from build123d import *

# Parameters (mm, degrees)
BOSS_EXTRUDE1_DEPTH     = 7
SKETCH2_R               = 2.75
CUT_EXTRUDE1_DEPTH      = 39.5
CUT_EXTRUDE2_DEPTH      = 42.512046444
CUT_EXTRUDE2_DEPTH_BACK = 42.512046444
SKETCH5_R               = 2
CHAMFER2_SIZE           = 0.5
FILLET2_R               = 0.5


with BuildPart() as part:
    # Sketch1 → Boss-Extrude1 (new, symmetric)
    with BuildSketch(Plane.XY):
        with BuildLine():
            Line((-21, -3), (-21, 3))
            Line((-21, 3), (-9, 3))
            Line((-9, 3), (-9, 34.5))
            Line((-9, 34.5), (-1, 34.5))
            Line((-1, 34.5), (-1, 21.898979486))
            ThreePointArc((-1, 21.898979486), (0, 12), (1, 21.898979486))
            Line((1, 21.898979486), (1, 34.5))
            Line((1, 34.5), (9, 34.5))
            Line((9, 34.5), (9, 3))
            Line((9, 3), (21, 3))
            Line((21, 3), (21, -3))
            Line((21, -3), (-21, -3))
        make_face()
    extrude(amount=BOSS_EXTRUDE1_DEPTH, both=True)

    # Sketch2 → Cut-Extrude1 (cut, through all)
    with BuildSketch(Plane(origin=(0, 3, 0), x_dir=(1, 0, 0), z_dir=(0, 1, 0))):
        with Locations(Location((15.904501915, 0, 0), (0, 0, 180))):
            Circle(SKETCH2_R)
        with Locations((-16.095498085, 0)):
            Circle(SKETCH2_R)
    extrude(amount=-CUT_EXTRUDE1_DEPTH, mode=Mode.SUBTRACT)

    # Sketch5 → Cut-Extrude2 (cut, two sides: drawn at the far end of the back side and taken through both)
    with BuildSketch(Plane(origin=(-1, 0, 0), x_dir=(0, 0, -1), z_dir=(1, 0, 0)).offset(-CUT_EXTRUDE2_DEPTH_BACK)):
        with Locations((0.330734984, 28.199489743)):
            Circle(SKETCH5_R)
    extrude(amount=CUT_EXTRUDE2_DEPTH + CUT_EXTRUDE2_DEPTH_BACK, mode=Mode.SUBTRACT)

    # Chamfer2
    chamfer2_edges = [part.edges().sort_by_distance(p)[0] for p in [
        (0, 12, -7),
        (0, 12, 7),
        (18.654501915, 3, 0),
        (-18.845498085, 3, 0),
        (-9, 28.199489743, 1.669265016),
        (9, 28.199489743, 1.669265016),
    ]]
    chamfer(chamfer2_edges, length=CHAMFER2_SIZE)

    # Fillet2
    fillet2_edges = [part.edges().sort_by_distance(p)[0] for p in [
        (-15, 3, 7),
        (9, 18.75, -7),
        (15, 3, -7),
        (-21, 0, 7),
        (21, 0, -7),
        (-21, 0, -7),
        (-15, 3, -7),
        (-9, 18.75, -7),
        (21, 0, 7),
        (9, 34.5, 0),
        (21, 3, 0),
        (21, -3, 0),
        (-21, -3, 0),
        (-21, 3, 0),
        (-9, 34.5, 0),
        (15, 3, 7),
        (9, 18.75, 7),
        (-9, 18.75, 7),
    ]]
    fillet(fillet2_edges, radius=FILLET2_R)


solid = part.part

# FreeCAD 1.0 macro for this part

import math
import FreeCAD as App
import Part
import Sketcher
from FreeCAD import Vector
Q = App.Units.Quantity


def edges_at(feature, points):
    """Names of the edges that pass closest to the given points."""
    edges = feature.Shape.Edges
    near = lambda p: min(range(len(edges)), key=lambda i: edges[i].distToShape(Part.Vertex(*p))[0])
    return sorted({f"Edge{near(p) + 1}" for p in points})

doc = App.newDocument("Part")
body = doc.addObject("PartDesign::Body", "Body")

# Sketch on XY plane
sketch1 = body.newObject("Sketcher::SketchObject", "Sketch")
sketch1.AttachmentSupport = (doc.getObject("XY_Plane"), [""])
sketch1.MapMode = "FlatFace"
sketch1.addGeometry(Part.LineSegment(Vector(-21, 3, 0), Vector(-21, -3, 0)), False)
sketch1.addGeometry(Part.LineSegment(Vector(-21, -3, 0), Vector(21, -3, 0)), False)
sketch1.addGeometry(Part.LineSegment(Vector(21, -3, 0), Vector(21, 3, 0)), False)
sketch1.addGeometry(Part.LineSegment(Vector(21, 3, 0), Vector(9, 3, 0)), False)
sketch1.addGeometry(Part.LineSegment(Vector(9, 3, 0), Vector(9, 34.5, 0)), False)
sketch1.addGeometry(Part.LineSegment(Vector(9, 34.5, 0), Vector(1, 34.5, 0)), False)
sketch1.addGeometry(Part.LineSegment(Vector(1, 34.5, 0), Vector(1, 21.898979, 0)), False)
sketch1.addGeometry(Part.ArcOfCircle(Part.Circle(Vector(0, 17, 0), Vector(0, 0, 1), 5), math.radians(101.536959), math.radians(438.463041)), False)
sketch1.addGeometry(Part.LineSegment(Vector(-1, 21.898979, 0), Vector(-1, 34.5, 0)), False)
sketch1.addGeometry(Part.LineSegment(Vector(-1, 34.5, 0), Vector(-9, 34.5, 0)), False)
sketch1.addGeometry(Part.LineSegment(Vector(-9, 34.5, 0), Vector(-9, 3, 0)), False)
sketch1.addGeometry(Part.LineSegment(Vector(-9, 3, 0), Vector(-21, 3, 0)), False)
sketch1.addConstraint(Sketcher.Constraint("Coincident", 0, 2, 1, 1))
sketch1.addConstraint(Sketcher.Constraint("Coincident", 1, 2, 2, 1))
sketch1.addConstraint(Sketcher.Constraint("Coincident", 2, 2, 3, 1))
sketch1.addConstraint(Sketcher.Constraint("Coincident", 3, 2, 4, 1))
sketch1.addConstraint(Sketcher.Constraint("Coincident", 4, 2, 5, 1))
sketch1.addConstraint(Sketcher.Constraint("Coincident", 5, 2, 6, 1))
sketch1.addConstraint(Sketcher.Constraint("Coincident", 6, 2, 7, 2))
sketch1.addConstraint(Sketcher.Constraint("Coincident", 7, 1, 8, 1))
sketch1.addConstraint(Sketcher.Constraint("Coincident", 8, 2, 9, 1))
sketch1.addConstraint(Sketcher.Constraint("Coincident", 9, 2, 10, 1))
sketch1.addConstraint(Sketcher.Constraint("Coincident", 10, 2, 11, 1))
sketch1.addConstraint(Sketcher.Constraint("Coincident", 11, 2, 0, 1))
sketch1.addConstraint(Sketcher.Constraint("Vertical", 0))
sketch1.addConstraint(Sketcher.Constraint("Horizontal", 1))
sketch1.addConstraint(Sketcher.Constraint("Vertical", 2))
sketch1.addConstraint(Sketcher.Constraint("Horizontal", 3))
sketch1.addConstraint(Sketcher.Constraint("Vertical", 4))
sketch1.addConstraint(Sketcher.Constraint("Horizontal", 5))
sketch1.addConstraint(Sketcher.Constraint("Vertical", 6))
sketch1.addConstraint(Sketcher.Constraint("Vertical", 8))
sketch1.addConstraint(Sketcher.Constraint("Horizontal", 9))
sketch1.addConstraint(Sketcher.Constraint("Vertical", 10))
sketch1.addConstraint(Sketcher.Constraint("Horizontal", 11))
sketch1.addConstraint(Sketcher.Constraint("Symmetric", 0, 2, 2, 2, -1, 1))
sketch1.addConstraint(Sketcher.Constraint("Symmetric", 6, 2, 7, 1, -2))
sketch1.addConstraint(Sketcher.Constraint("Symmetric", 4, 2, 9, 2, -2))
sketch1.addConstraint(Sketcher.Constraint("Horizontal", 3, 2, 10, 2))
sketch1.addConstraint(Sketcher.Constraint("Radius", 7, Q("5 mm")))
sketch1.addConstraint(Sketcher.Constraint("DistanceX", 1, 1, 1, 2, Q("42 mm")))
sketch1.addConstraint(Sketcher.Constraint("DistanceX", 3, 2, 3, 1, Q("12 mm")))
sketch1.addConstraint(Sketcher.Constraint("DistanceX", 5, 2, 5, 1, Q("8 mm")))
sketch1.addConstraint(Sketcher.Constraint("DistanceY", 0, 2, 0, 1, Q("6 mm")))
sketch1.addConstraint(Sketcher.Constraint("DistanceY", 4, 1, 4, 2, Q("31.5 mm")))
sketch1.addConstraint(Sketcher.Constraint("DistanceY", -1, 1, 7, 3, Q("17 mm")))
pad1 = body.newObject("PartDesign::Pad", "Pad")
pad1.Profile = sketch1
pad1.Length = 14
pad1.Midplane = True

# Sketch on XZ plane
sketch2 = body.newObject("Sketcher::SketchObject", "Sketch001")
sketch2.AttachmentSupport = (doc.getObject("XZ_Plane"), [""])
sketch2.MapMode = "FlatFace"
sketch2.AttachmentOffset = App.Placement(Vector(0, 0, -3), App.Rotation())
sketch2.addGeometry(Part.Circle(Vector(15.904502, 0, 0), Vector(0, 0, 1), 2.75), False)
sketch2.addGeometry(Part.Circle(Vector(-16.095498, 0, 0), Vector(0, 0, 1), 2.75), False)
sketch2.addConstraint(Sketcher.Constraint("Equal", 0, 1))
sketch2.addConstraint(Sketcher.Constraint("PointOnObject", 0, 3, -1))
sketch2.addConstraint(Sketcher.Constraint("PointOnObject", 1, 3, -1))
sketch2.addConstraint(Sketcher.Constraint("Diameter", 0, Q("5.5 mm")))
sketch2.addConstraint(Sketcher.Constraint("DistanceX", 1, 3, 0, 3, Q("32 mm")))
sketch2.addConstraint(Sketcher.Constraint("DistanceX", -1, 1, 0, 3, Q("15.904502 mm")))
pocket1 = body.newObject("PartDesign::Pocket", "Pocket")
pocket1.Profile = sketch2
pocket1.Type = "ThroughAll"
pocket1.Reversed = True

# Sketch on YZ plane
sketch3 = body.newObject("Sketcher::SketchObject", "Sketch002")
sketch3.AttachmentSupport = (doc.getObject("YZ_Plane"), [""])
sketch3.MapMode = "FlatFace"
sketch3.AttachmentOffset = App.Placement(Vector(0, 0, -1), App.Rotation())
sketch3.addGeometry(Part.Circle(Vector(28.19949, -0.330735, 0), Vector(0, 0, 1), 2), False)
sketch3.addConstraint(Sketcher.Constraint("Diameter", 0, Q("4 mm")))
sketch3.addConstraint(Sketcher.Constraint("DistanceX", -1, 1, 0, 3, Q("28.19949 mm")))
sketch3.addConstraint(Sketcher.Constraint("DistanceY", 0, 3, -1, 1, Q("0.330735 mm")))
pocket2 = body.newObject("PartDesign::Pocket", "Pocket001")
pocket2.Profile = sketch3
pocket2.Type = "ThroughAll"
pocket2.Midplane = True
doc.recompute()

chamfer = body.newObject("PartDesign::Chamfer", "Chamfer")
chamfer.Base = (pocket2, edges_at(pocket2, [
    (0, 12, -7),
    (0, 12, 7),
    (18.655, 3, 0),
    (-18.845, 3, 0),
    (-9, 28.199, 1.669),
    (9, 28.199, 1.669),
]))
chamfer.Size = 0.5
doc.recompute()

fillet = body.newObject("PartDesign::Fillet", "Fillet")
fillet.Base = (chamfer, edges_at(chamfer, [
    (-15, 3, 7),
    (9, 18.75, -7),
    (15, 3, -7),
    (-21, 0, 7),
    (21, 0, -7),
    (-21, 0, -7),
    (-15, 3, -7),
    (-9, 18.75, -7),
    (21, 0, 7),
    (9, 34.5, 0),
    (21, 3, 0),
    (21, -3, 0),
    (-21, -3, 0),
    (-21, 3, 0),
    (-9, 34.5, 0),
    (15, 3, 7),
    (9, 18.75, 7),
    (-9, 18.75, 7),
]))
fillet.Radius = 0.5

doc.recompute()
